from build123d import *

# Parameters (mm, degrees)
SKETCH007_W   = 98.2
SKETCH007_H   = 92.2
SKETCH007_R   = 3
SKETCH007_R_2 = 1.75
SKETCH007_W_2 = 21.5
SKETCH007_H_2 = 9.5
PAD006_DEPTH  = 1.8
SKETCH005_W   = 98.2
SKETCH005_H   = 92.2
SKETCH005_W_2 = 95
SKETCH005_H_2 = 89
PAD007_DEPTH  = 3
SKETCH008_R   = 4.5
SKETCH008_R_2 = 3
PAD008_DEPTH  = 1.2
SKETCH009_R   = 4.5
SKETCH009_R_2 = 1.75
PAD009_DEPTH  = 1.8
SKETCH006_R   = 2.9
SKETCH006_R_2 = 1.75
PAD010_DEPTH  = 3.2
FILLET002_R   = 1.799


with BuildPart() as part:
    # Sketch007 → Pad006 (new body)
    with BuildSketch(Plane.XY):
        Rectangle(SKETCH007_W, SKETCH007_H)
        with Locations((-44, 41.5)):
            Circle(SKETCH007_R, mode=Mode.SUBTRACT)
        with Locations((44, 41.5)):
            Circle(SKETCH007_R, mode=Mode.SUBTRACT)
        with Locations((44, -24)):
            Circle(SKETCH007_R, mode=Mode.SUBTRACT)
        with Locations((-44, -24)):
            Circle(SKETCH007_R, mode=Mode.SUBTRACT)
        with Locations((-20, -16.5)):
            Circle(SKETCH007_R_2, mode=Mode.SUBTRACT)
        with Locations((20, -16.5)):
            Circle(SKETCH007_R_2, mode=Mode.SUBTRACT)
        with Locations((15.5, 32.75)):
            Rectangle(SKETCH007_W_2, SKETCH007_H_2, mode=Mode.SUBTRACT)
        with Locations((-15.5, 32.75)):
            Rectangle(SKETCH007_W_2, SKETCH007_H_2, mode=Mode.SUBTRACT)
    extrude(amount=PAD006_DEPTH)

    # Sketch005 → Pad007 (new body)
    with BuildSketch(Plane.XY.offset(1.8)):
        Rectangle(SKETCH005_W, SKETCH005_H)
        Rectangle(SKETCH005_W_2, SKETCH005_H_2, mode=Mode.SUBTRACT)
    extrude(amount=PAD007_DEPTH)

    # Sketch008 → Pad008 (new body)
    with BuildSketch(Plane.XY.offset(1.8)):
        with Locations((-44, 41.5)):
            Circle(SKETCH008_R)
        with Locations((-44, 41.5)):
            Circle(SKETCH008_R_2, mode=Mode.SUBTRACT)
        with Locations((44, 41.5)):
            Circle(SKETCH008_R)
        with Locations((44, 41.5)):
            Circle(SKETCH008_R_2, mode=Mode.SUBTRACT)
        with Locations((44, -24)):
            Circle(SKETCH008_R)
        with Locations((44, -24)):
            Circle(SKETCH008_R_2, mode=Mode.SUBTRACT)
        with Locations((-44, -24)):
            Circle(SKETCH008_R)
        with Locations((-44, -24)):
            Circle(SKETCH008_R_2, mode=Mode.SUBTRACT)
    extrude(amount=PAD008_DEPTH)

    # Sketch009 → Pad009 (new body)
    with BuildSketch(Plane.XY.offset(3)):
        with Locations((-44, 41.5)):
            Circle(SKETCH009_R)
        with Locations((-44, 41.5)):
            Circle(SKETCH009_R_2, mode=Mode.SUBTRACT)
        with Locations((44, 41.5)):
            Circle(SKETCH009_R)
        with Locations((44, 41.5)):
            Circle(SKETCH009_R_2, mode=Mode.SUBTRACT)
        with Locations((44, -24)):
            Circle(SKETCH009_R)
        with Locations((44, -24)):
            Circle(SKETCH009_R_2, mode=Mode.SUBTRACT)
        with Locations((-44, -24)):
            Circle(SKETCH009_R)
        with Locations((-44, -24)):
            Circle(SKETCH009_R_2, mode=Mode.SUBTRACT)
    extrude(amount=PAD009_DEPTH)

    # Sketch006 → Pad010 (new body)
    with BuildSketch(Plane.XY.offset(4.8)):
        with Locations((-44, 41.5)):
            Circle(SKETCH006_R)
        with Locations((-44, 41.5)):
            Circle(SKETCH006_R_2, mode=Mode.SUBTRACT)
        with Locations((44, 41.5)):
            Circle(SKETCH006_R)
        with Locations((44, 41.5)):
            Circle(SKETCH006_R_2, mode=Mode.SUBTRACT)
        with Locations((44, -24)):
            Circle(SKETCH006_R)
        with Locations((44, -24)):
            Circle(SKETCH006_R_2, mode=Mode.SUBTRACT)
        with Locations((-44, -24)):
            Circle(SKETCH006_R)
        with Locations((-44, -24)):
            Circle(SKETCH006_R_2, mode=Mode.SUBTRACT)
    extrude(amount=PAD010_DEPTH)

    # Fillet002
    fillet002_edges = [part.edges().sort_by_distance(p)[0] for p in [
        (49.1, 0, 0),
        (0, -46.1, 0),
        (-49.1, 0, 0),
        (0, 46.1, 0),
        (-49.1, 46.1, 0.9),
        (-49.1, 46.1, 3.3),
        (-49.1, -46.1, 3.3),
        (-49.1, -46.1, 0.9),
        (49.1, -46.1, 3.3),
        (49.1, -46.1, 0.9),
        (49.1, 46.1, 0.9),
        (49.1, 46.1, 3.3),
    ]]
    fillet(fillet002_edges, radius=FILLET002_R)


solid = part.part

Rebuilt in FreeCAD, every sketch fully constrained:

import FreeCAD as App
import Part
import Sketcher

V = App.Vector
Q = App.Units.Quantity


def edges_at(feature, points):
    """Names of the edges that pass closest to the given points."""
    edges = feature.Shape.Edges
    near = lambda p: min(range(len(edges)), key=lambda i: edges[i].distToShape(Part.Vertex(*p))[0])
    return sorted({f"Edge{near(p) + 1}" for p in points})


def add_polygon(sketch, points):
    """Adds a closed chain of lines whose ends are joined by coincident constraints."""
    first, n = sketch.GeometryCount, len(points)
    for a, b in zip(points, points[1:] + points[:1]):
        sketch.addGeometry(Part.LineSegment(App.Vector(*a, 0), App.Vector(*b, 0)), False)
    for i in range(n):
        sketch.addConstraint(Sketcher.Constraint("Coincident", first + i, 2, first + (i + 1) % n, 1))

doc = App.newDocument("Part")
body = doc.addObject("PartDesign::Body", "Body")

# Sketch on XY plane
sketch1 = body.newObject("Sketcher::SketchObject", "Sketch")
sketch1.AttachmentSupport = (doc.getObject("XY_Plane"), [""])
sketch1.MapMode = "FlatFace"
add_polygon(sketch1, [(-49.1, 46.1), (-49.1, -46.1), (49.1, -46.1), (49.1, 46.1)])  # lines 0-3
sketch1.addGeometry(Part.Circle(V(-44, -24, 0), V(0, 0, 1), 3), False)  # 4
sketch1.addGeometry(Part.Circle(V(-20, -16.5, 0), V(0, 0, 1), 1.8), False)  # 5
sketch1.addGeometry(Part.Circle(V(20, -16.5, 0), V(0, 0, 1), 1.8), False)  # 6
sketch1.addGeometry(Part.Circle(V(44, -24, 0), V(0, 0, 1), 3), False)  # 7
sketch1.addGeometry(Part.Circle(V(-44, 41.5, 0), V(0, 0, 1), 3), False)  # 8
add_polygon(sketch1, [(-4.8, 28), (-26.2, 28), (-26.2, 37.5), (-4.8, 37.5)])  # lines 9-12
add_polygon(sketch1, [(26.2, 28), (4.8, 28), (4.8, 37.5), (26.2, 37.5)])  # lines 13-16
sketch1.addGeometry(Part.Circle(V(44, 41.5, 0), V(0, 0, 1), 3), False)  # 17
sketch1.addConstraint(Sketcher.Constraint("Vertical", 0))
sketch1.addConstraint(Sketcher.Constraint("Horizontal", 1))
sketch1.addConstraint(Sketcher.Constraint("Vertical", 2))
sketch1.addConstraint(Sketcher.Constraint("Horizontal", 3))
sketch1.addConstraint(Sketcher.Constraint("Horizontal", 9))
sketch1.addConstraint(Sketcher.Constraint("Vertical", 10))
sketch1.addConstraint(Sketcher.Constraint("Horizontal", 11))
sketch1.addConstraint(Sketcher.Constraint("Vertical", 12))
sketch1.addConstraint(Sketcher.Constraint("Horizontal", 13))
sketch1.addConstraint(Sketcher.Constraint("Vertical", 14))
sketch1.addConstraint(Sketcher.Constraint("Horizontal", 15))
sketch1.addConstraint(Sketcher.Constraint("Vertical", 16))
sketch1.addConstraint(Sketcher.Constraint("Equal", 5, 6))
sketch1.addConstraint(Sketcher.Constraint("Equal", 4, 7))
sketch1.addConstraint(Sketcher.Constraint("Equal", 7, 8))
sketch1.addConstraint(Sketcher.Constraint("Equal", 8, 17))
sketch1.addConstraint(Sketcher.Constraint("Symmetric", 0, 2, 2, 2, -1, 1))
sketch1.addConstraint(Sketcher.Constraint("Symmetric", 5, 3, 6, 3, -2))
sketch1.addConstraint(Sketcher.Constraint("Symmetric", 4, 3, 7, 3, -2))
sketch1.addConstraint(Sketcher.Constraint("Symmetric", 8, 3, 17, 3, -2))
sketch1.addConstraint(Sketcher.Constraint("Symmetric", 12, 2, 13, 2, -2))
sketch1.addConstraint(Sketcher.Constraint("Symmetric", 10, 2, 15, 2, -2))
sketch1.addConstraint(Sketcher.Constraint("Vertical", 4, 3, 8, 3))
sketch1.addConstraint(Sketcher.Constraint("Diameter", 4, Q("6 mm")))
sketch1.addConstraint(Sketcher.Constraint("Diameter", 5, Q("3.5 mm")))
sketch1.addConstraint(Sketcher.Constraint("DistanceX", 1, 1, 1, 2, Q("98.2 mm")))
sketch1.addConstraint(Sketcher.Constraint("DistanceX", 9, 2, 9, 1, Q("21.5 mm")))
sketch1.addConstraint(Sketcher.Constraint("DistanceY", 0, 2, 0, 1, Q("92.2 mm")))
sketch1.addConstraint(Sketcher.Constraint("DistanceY", 10, 1, 10, 2, Q("9.5 mm")))
sketch1.addConstraint(Sketcher.Constraint("DistanceX", 4, 3, -1, 1, Q("44 mm")))
sketch1.addConstraint(Sketcher.Constraint("DistanceY", 4, 3, -1, 1, Q("24 mm")))
sketch1.addConstraint(Sketcher.Constraint("DistanceX", 5, 3, -1, 1, Q("20 mm")))
sketch1.addConstraint(Sketcher.Constraint("DistanceY", -1, 1, 9, 2, Q("28 mm")))
sketch1.addConstraint(Sketcher.Constraint("DistanceY", 5, 3, 8, 3, Q("58 mm")))
sketch1.addConstraint(Sketcher.Constraint("DistanceY", 10, 2, 8, 3, Q("4 mm")))
sketch1.addConstraint(Sketcher.Constraint("DistanceX", 9, 2, 13, 2, Q("31 mm")))
pad1 = body.newObject("PartDesign::Pad", "Pad")
pad1.Profile = sketch1
pad1.Length = 1.8

# Sketch on XY plane
sketch2 = body.newObject("Sketcher::SketchObject", "Sketch001")
sketch2.AttachmentSupport = (doc.getObject("XY_Plane"), [""])
sketch2.MapMode = "FlatFace"
sketch2.AttachmentOffset = App.Placement(V(0, 0, 1.8), App.Rotation())
add_polygon(sketch2, [(-49, 46), (-49, -46), (49, -46), (49, 46)])  # lines 0-3
add_polygon(sketch2, [(48, -44), (-48, -44), (-48, 44), (48, 44)])  # lines 4-7
sketch2.addConstraint(Sketcher.Constraint("Vertical", 0))
sketch2.addConstraint(Sketcher.Constraint("Horizontal", 1))
sketch2.addConstraint(Sketcher.Constraint("Vertical", 2))
sketch2.addConstraint(Sketcher.Constraint("Horizontal", 3))
sketch2.addConstraint(Sketcher.Constraint("Horizontal", 4))
sketch2.addConstraint(Sketcher.Constraint("Vertical", 5))
sketch2.addConstraint(Sketcher.Constraint("Horizontal", 6))
sketch2.addConstraint(Sketcher.Constraint("Vertical", 7))
sketch2.addConstraint(Sketcher.Constraint("Symmetric", 0, 2, 2, 2, -1, 1))
sketch2.addConstraint(Sketcher.Constraint("Symmetric", 4, 2, 6, 2, -1, 1))
sketch2.addConstraint(Sketcher.Constraint("DistanceX", 4, 2, 4, 1, Q("95 mm")))
sketch2.addConstraint(Sketcher.Constraint("DistanceY", 5, 1, 5, 2, Q("89 mm")))
sketch2.addConstraint(Sketcher.Constraint("DistanceX", 1, 1, 1, 2, Q("98.2 mm")))
sketch2.addConstraint(Sketcher.Constraint("DistanceY", 0, 2, 0, 1, Q("92.2 mm")))
pad2 = body.newObject("PartDesign::Pad", "Pad001")
pad2.Profile = sketch2
pad2.Length = 3

# Sketch on XY plane
sketch3 = body.newObject("Sketcher::SketchObject", "Sketch002")
sketch3.AttachmentSupport = (doc.getObject("XY_Plane"), [""])
sketch3.MapMode = "FlatFace"
sketch3.AttachmentOffset = App.Placement(V(0, 0, 1.8), App.Rotation())
sketch3.addGeometry(Part.Circle(V(-44, 41.5, 0), V(0, 0, 1), 4.5), False)
sketch3.addGeometry(Part.Circle(V(-44, 41.5, 0), V(0, 0, 1), 3), False)
sketch3.addGeometry(Part.Circle(V(44, 41.5, 0), V(0, 0, 1), 4.5), False)
sketch3.addGeometry(Part.Circle(V(44, 41.5, 0), V(0, 0, 1), 3), False)
sketch3.addGeometry(Part.Circle(V(44, -24, 0), V(0, 0, 1), 4.5), False)
sketch3.addGeometry(Part.Circle(V(44, -24, 0), V(0, 0, 1), 3), False)
sketch3.addGeometry(Part.Circle(V(-44, -24, 0), V(0, 0, 1), 4.5), False)
sketch3.addGeometry(Part.Circle(V(-44, -24, 0), V(0, 0, 1), 3), False)
sketch3.addConstraint(Sketcher.Constraint("Coincident", 1, 3, 0, 3))
sketch3.addConstraint(Sketcher.Constraint("Coincident", 3, 3, 2, 3))
sketch3.addConstraint(Sketcher.Constraint("Coincident", 5, 3, 4, 3))
sketch3.addConstraint(Sketcher.Constraint("Coincident", 7, 3, 6, 3))
sketch3.addConstraint(Sketcher.Constraint("Equal", 0, 2))
sketch3.addConstraint(Sketcher.Constraint("Equal", 1, 3))
sketch3.addConstraint(Sketcher.Constraint("Equal", 2, 4))
sketch3.addConstraint(Sketcher.Constraint("Equal", 3, 5))
sketch3.addConstraint(Sketcher.Constraint("Equal", 4, 6))
sketch3.addConstraint(Sketcher.Constraint("Equal", 5, 7))
sketch3.addConstraint(Sketcher.Constraint("Symmetric", 0, 3, 2, 3, -2))
sketch3.addConstraint(Sketcher.Constraint("Symmetric", 4, 3, 6, 3, -2))
sketch3.addConstraint(Sketcher.Constraint("Vertical", 3, 3, 4, 3))
sketch3.addConstraint(Sketcher.Constraint("Diameter", 0, Q("9 mm")))
sketch3.addConstraint(Sketcher.Constraint("Diameter", 1, Q("6 mm")))
sketch3.addConstraint(Sketcher.Constraint("DistanceX", 0, 3, -1, 1, Q("44 mm")))
sketch3.addConstraint(Sketcher.Constraint("DistanceY", 4, 3, -1, 1, Q("24 mm")))
sketch3.addConstraint(Sketcher.Constraint("DistanceY", -1, 1, 0, 3, Q("41.5 mm")))
pad3 = body.newObject("PartDesign::Pad", "Pad002")
pad3.Profile = sketch3
pad3.Length = 1.2

# Sketch on XY plane
sketch4 = body.newObject("Sketcher::SketchObject", "Sketch003")
sketch4.AttachmentSupport = (doc.getObject("XY_Plane"), [""])
sketch4.MapMode = "FlatFace"
sketch4.AttachmentOffset = App.Placement(V(0, 0, 3), App.Rotation())
sketch4.addGeometry(Part.Circle(V(-44, 41.5, 0), V(0, 0, 1), 4.5), False)
sketch4.addGeometry(Part.Circle(V(-44, 41.5, 0), V(0, 0, 1), 1.8), False)
sketch4.addGeometry(Part.Circle(V(44, 41.5, 0), V(0, 0, 1), 4.5), False)
sketch4.addGeometry(Part.Circle(V(44, 41.5, 0), V(0, 0, 1), 1.8), False)
sketch4.addGeometry(Part.Circle(V(44, -24, 0), V(0, 0, 1), 4.5), False)
sketch4.addGeometry(Part.Circle(V(44, -24, 0), V(0, 0, 1), 1.8), False)
sketch4.addGeometry(Part.Circle(V(-44, -24, 0), V(0, 0, 1), 4.5), False)
sketch4.addGeometry(Part.Circle(V(-44, -24, 0), V(0, 0, 1), 1.8), False)
sketch4.addConstraint(Sketcher.Constraint("Coincident", 1, 3, 0, 3))
sketch4.addConstraint(Sketcher.Constraint("Coincident", 3, 3, 2, 3))
sketch4.addConstraint(Sketcher.Constraint("Coincident", 5, 3, 4, 3))
sketch4.addConstraint(Sketcher.Constraint("Coincident", 7, 3, 6, 3))
sketch4.addConstraint(Sketcher.Constraint("Equal", 0, 2))
sketch4.addConstraint(Sketcher.Constraint("Equal", 1, 3))
sketch4.addConstraint(Sketcher.Constraint("Equal", 2, 4))
sketch4.addConstraint(Sketcher.Constraint("Equal", 3, 5))
sketch4.addConstraint(Sketcher.Constraint("Equal", 4, 6))
sketch4.addConstraint(Sketcher.Constraint("Equal", 5, 7))
sketch4.addConstraint(Sketcher.Constraint("Symmetric", 0, 3, 2, 3, -2))
sketch4.addConstraint(Sketcher.Constraint("Symmetric", 4, 3, 6, 3, -2))
sketch4.addConstraint(Sketcher.Constraint("Vertical", 3, 3, 4, 3))
sketch4.addConstraint(Sketcher.Constraint("Diameter", 0, Q("9 mm")))
sketch4.addConstraint(Sketcher.Constraint("Diameter", 1, Q("3.5 mm")))
sketch4.addConstraint(Sketcher.Constraint("DistanceX", 0, 3, -1, 1, Q("44 mm")))
sketch4.addConstraint(Sketcher.Constraint("DistanceY", 4, 3, -1, 1, Q("24 mm")))
sketch4.addConstraint(Sketcher.Constraint("DistanceY", -1, 1, 0, 3, Q("41.5 mm")))
pad4 = body.newObject("PartDesign::Pad", "Pad003")
pad4.Profile = sketch4
pad4.Length = 1.8

# Sketch on XY plane
sketch5 = body.newObject("Sketcher::SketchObject", "Sketch004")
sketch5.AttachmentSupport = (doc.getObject("XY_Plane"), [""])
sketch5.MapMode = "FlatFace"
sketch5.AttachmentOffset = App.Placement(V(0, 0, 4.8), App.Rotation())
sketch5.addGeometry(Part.Circle(V(-44, 41.5, 0), V(0, 0, 1), 2.9), False)
sketch5.addGeometry(Part.Circle(V(-44, 41.5, 0), V(0, 0, 1), 1.8), False)
sketch5.addGeometry(Part.Circle(V(44, 41.5, 0), V(0, 0, 1), 2.9), False)
sketch5.addGeometry(Part.Circle(V(44, 41.5, 0), V(0, 0, 1), 1.8), False)
sketch5.addGeometry(Part.Circle(V(44, -24, 0), V(0, 0, 1), 2.9), False)
sketch5.addGeometry(Part.Circle(V(44, -24, 0), V(0, 0, 1), 1.8), False)
sketch5.addGeometry(Part.Circle(V(-44, -24, 0), V(0, 0, 1), 2.9), False)
sketch5.addGeometry(Part.Circle(V(-44, -24, 0), V(0, 0, 1), 1.8), False)
sketch5.addConstraint(Sketcher.Constraint("Coincident", 1, 3, 0, 3))
sketch5.addConstraint(Sketcher.Constraint("Coincident", 3, 3, 2, 3))
sketch5.addConstraint(Sketcher.Constraint("Coincident", 5, 3, 4, 3))
sketch5.addConstraint(Sketcher.Constraint("Coincident", 7, 3, 6, 3))
sketch5.addConstraint(Sketcher.Constraint("Equal", 0, 2))
sketch5.addConstraint(Sketcher.Constraint("Equal", 1, 3))
sketch5.addConstraint(Sketcher.Constraint("Equal", 2, 4))
sketch5.addConstraint(Sketcher.Constraint("Equal", 3, 5))
sketch5.addConstraint(Sketcher.Constraint("Equal", 4, 6))
sketch5.addConstraint(Sketcher.Constraint("Equal", 5, 7))
sketch5.addConstraint(Sketcher.Constraint("Symmetric", 0, 3, 2, 3, -2))
sketch5.addConstraint(Sketcher.Constraint("Symmetric", 4, 3, 6, 3, -2))
sketch5.addConstraint(Sketcher.Constraint("Vertical", 3, 3, 4, 3))
sketch5.addConstraint(Sketcher.Constraint("Diameter", 0, Q("5.8 mm")))
sketch5.addConstraint(Sketcher.Constraint("Diameter", 1, Q("3.5 mm")))
sketch5.addConstraint(Sketcher.Constraint("DistanceX", 0, 3, -1, 1, Q("44 mm")))
sketch5.addConstraint(Sketcher.Constraint("DistanceY", 4, 3, -1, 1, Q("24 mm")))
sketch5.addConstraint(Sketcher.Constraint("DistanceY", -1, 1, 0, 3, Q("41.5 mm")))
pad5 = body.newObject("PartDesign::Pad", "Pad004")
pad5.Profile = sketch5
pad5.Length = 3.2
doc.recompute()

fillet = body.newObject("PartDesign::Fillet", "Fillet")
fillet.Base = (pad5, edges_at(pad5, [
    (49.1, 0, 0),
    (0, -46.1, 0),
    (-49.1, 0, 0),
    (0, 46.1, 0),
    (-49.1, 46.1, 2.4),
    (-49.1, 46.1, 2.4),
    (-49.1, -46.1, 2.4),
    (-49.1, -46.1, 2.4),
    (49.1, -46.1, 2.4),
    (49.1, -46.1, 2.4),
    (49.1, 46.1, 2.4),
    (49.1, 46.1, 2.4),
]))
fillet.Radius = 1.799

doc.recompute()
